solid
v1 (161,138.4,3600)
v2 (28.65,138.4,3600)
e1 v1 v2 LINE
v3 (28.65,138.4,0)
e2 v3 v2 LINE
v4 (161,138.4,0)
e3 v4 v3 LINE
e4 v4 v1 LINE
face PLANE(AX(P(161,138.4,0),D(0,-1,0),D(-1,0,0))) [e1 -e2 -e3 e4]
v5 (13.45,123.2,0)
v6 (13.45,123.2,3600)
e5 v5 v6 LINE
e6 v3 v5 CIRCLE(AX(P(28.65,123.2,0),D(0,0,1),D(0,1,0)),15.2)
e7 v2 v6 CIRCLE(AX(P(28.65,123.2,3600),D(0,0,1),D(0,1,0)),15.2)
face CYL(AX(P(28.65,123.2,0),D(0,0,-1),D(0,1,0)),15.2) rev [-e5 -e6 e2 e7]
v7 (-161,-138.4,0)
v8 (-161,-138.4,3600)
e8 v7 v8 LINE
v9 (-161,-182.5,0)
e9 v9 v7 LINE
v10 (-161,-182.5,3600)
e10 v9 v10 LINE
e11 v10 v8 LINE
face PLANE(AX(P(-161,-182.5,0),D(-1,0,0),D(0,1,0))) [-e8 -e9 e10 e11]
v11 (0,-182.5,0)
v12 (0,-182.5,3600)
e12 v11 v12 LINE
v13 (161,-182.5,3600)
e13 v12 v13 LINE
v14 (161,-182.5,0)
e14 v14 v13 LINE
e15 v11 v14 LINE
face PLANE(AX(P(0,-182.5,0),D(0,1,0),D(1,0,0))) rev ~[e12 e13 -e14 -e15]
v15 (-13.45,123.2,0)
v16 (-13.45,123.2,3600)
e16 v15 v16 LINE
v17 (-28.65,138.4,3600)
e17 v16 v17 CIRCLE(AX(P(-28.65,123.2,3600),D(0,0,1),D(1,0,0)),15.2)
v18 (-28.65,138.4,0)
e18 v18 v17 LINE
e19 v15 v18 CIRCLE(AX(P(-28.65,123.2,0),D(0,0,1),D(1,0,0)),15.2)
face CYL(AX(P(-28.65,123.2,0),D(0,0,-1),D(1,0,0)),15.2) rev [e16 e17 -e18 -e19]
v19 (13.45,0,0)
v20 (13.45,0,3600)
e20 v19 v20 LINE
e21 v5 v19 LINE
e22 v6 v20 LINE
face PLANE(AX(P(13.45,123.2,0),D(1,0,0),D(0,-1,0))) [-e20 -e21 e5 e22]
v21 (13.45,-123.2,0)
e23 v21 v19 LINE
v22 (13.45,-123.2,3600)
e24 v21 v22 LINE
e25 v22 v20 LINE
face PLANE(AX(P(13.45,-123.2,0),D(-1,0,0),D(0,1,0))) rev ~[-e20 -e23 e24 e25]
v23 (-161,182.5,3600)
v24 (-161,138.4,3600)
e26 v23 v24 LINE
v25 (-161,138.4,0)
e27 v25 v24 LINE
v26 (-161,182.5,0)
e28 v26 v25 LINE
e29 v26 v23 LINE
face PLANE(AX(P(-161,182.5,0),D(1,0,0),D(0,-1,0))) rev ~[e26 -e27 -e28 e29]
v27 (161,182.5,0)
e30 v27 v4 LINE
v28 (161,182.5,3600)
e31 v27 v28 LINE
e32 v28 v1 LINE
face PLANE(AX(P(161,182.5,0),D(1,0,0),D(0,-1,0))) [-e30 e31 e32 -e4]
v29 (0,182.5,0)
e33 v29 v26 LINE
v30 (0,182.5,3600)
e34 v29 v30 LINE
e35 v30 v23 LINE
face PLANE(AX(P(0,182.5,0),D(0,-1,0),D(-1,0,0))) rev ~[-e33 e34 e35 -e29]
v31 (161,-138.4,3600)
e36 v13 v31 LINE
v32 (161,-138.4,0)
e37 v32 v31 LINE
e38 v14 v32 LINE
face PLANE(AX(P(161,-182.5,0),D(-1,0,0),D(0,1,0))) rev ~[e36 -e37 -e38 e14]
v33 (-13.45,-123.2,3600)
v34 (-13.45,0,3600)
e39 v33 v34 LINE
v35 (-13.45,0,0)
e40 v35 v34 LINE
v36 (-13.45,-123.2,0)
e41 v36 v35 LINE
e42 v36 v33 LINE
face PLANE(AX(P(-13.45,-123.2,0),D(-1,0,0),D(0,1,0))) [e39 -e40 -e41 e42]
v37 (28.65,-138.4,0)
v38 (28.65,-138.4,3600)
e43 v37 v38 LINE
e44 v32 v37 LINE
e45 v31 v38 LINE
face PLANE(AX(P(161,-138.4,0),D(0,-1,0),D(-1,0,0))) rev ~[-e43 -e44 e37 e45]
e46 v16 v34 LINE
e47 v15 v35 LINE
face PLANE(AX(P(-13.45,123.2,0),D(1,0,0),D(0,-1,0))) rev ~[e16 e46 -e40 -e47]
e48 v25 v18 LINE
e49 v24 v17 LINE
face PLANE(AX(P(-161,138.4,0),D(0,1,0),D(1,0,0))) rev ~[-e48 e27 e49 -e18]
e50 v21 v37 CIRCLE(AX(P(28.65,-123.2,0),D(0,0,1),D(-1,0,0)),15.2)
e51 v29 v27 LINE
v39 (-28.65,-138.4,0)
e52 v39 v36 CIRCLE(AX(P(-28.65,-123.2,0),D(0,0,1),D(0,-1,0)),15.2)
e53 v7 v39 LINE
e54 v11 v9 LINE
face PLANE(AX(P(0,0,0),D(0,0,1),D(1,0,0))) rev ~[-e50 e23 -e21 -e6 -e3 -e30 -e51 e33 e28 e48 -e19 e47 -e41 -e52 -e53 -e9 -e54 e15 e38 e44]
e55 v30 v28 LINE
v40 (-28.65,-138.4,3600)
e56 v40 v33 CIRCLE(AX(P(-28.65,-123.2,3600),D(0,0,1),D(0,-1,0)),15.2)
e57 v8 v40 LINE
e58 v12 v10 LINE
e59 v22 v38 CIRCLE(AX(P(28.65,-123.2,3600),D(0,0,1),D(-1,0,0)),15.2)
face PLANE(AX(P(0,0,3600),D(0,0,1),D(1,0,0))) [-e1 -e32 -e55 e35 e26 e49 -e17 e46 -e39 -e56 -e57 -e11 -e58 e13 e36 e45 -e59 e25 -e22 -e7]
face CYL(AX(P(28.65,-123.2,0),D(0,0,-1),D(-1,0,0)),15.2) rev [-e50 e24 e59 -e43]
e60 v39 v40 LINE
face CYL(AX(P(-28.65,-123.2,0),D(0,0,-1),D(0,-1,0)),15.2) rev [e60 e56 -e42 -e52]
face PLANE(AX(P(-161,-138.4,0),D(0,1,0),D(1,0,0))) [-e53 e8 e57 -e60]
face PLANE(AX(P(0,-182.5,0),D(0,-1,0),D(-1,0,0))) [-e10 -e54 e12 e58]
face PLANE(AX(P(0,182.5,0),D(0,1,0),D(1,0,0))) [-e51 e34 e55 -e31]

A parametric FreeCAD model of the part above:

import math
import FreeCAD as App
import Part
import Sketcher

V = App.Vector

doc = App.newDocument("Part")
body = doc.addObject("PartDesign::Body", "Body")

# Sketch on XY plane
sketch1 = doc.addObject("Sketcher::SketchObject", "Sketch")
body.addObject(sketch1)
sketch1.AttachmentSupport = (doc.XY_Plane, [""])
sketch1.MapMode = "FlatFace"
sketch1.addGeometry(Part.LineSegment(V(-161, -138, 0), V(-161, -182, 0)), False)
sketch1.addGeometry(Part.LineSegment(V(-161, -182, 0), V(161, -182, 0)), False)
sketch1.addGeometry(Part.LineSegment(V(161, -182, 0), V(161, -138, 0)), False)
sketch1.addGeometry(Part.LineSegment(V(161, -138, 0), V(29, -138, 0)), False)
sketch1.addGeometry(Part.ArcOfCircle(Part.Circle(V(29, -123, 0), V(0, 0, 1), 15), math.radians(180), math.radians(270)), False)
sketch1.addGeometry(Part.LineSegment(V(13, -123, 0), V(13, 123, 0)), False)
sketch1.addGeometry(Part.ArcOfCircle(Part.Circle(V(29, 123, 0), V(0, 0, 1), 15), math.radians(90), math.radians(180)), False)
sketch1.addGeometry(Part.LineSegment(V(29, 138, 0), V(161, 138, 0)), False)
sketch1.addGeometry(Part.LineSegment(V(161, 138, 0), V(161, 182, 0)), False)
sketch1.addGeometry(Part.LineSegment(V(161, 182, 0), V(-161, 182, 0)), False)
sketch1.addGeometry(Part.LineSegment(V(-161, 182, 0), V(-161, 138, 0)), False)
sketch1.addGeometry(Part.LineSegment(V(-161, 138, 0), V(-29, 138, 0)), False)
sketch1.addGeometry(Part.ArcOfCircle(Part.Circle(V(-29, 123, 0), V(0, 0, 1), 15), math.radians(0), math.radians(90)), False)
sketch1.addGeometry(Part.LineSegment(V(-13, 123, 0), V(-13, -123, 0)), False)
sketch1.addGeometry(Part.ArcOfCircle(Part.Circle(V(-29, -123, 0), V(0, 0, 1), 15), math.radians(-90), math.radians(0)), False)
sketch1.addGeometry(Part.LineSegment(V(-29, -138, 0), V(-161, -138, 0)), False)
sketch1.addConstraint(Sketcher.Constraint("Coincident", 0, 2, 1, 1))
sketch1.addConstraint(Sketcher.Constraint("Coincident", 1, 2, 2, 1))
sketch1.addConstraint(Sketcher.Constraint("Coincident", 2, 2, 3, 1))
sketch1.addConstraint(Sketcher.Constraint("Tangent", 3, 2, 4, 2))
sketch1.addConstraint(Sketcher.Constraint("Tangent", 4, 1, 5, 1))
sketch1.addConstraint(Sketcher.Constraint("Tangent", 5, 2, 6, 2))
sketch1.addConstraint(Sketcher.Constraint("Tangent", 6, 1, 7, 1))
sketch1.addConstraint(Sketcher.Constraint("Coincident", 7, 2, 8, 1))
sketch1.addConstraint(Sketcher.Constraint("Coincident", 8, 2, 9, 1))
sketch1.addConstraint(Sketcher.Constraint("Coincident", 9, 2, 10, 1))
sketch1.addConstraint(Sketcher.Constraint("Coincident", 10, 2, 11, 1))
sketch1.addConstraint(Sketcher.Constraint("Tangent", 11, 2, 12, 2))
sketch1.addConstraint(Sketcher.Constraint("Tangent", 12, 1, 13, 1))
sketch1.addConstraint(Sketcher.Constraint("Tangent", 13, 2, 14, 2))
sketch1.addConstraint(Sketcher.Constraint("Tangent", 14, 1, 15, 1))
sketch1.addConstraint(Sketcher.Constraint("Coincident", 15, 2, 0, 1))
sketch1.addConstraint(Sketcher.Constraint("Vertical", 0))
sketch1.addConstraint(Sketcher.Constraint("Horizontal", 1))
sketch1.addConstraint(Sketcher.Constraint("Vertical", 2))
sketch1.addConstraint(Sketcher.Constraint("Horizontal", 3))
sketch1.addConstraint(Sketcher.Constraint("Vertical", 5))
sketch1.addConstraint(Sketcher.Constraint("Horizontal", 7))
sketch1.addConstraint(Sketcher.Constraint("Vertical", 8))
sketch1.addConstraint(Sketcher.Constraint("Horizontal", 9))
sketch1.addConstraint(Sketcher.Constraint("Vertical", 10))
sketch1.addConstraint(Sketcher.Constraint("Horizontal", 11))
sketch1.addConstraint(Sketcher.Constraint("Vertical", 13))
sketch1.addConstraint(Sketcher.Constraint("Horizontal", 15))
sketch1.addConstraint(Sketcher.Constraint("Equal", 4, 6))
sketch1.addConstraint(Sketcher.Constraint("Equal", 6, 12))
sketch1.addConstraint(Sketcher.Constraint("Equal", 12, 14))
sketch1.addConstraint(Sketcher.Constraint("Symmetric", 4, 3, 12, 3, -1, 1))
sketch1.addConstraint(Sketcher.Constraint("Symmetric", 0, 2, 8, 2, -1, 1))
sketch1.addConstraint(Sketcher.Constraint("Symmetric", 7, 2, 10, 2, -2))
sketch1.addConstraint(Sketcher.Constraint("Symmetric", 2, 2, 15, 2, -2))
sketch1.addConstraint(Sketcher.Constraint("Radius", 4, 15.2))
sketch1.addConstraint(Sketcher.Constraint("DistanceY", 0, 2, 0, 1, 44.1))
sketch1.addConstraint(Sketcher.Constraint("DistanceX", 0, 2, -1, 1, 161.0))
sketch1.addConstraint(Sketcher.Constraint("DistanceY", 0, 2, -1, 1, 182.5))
sketch1.addConstraint(Sketcher.Constraint("DistanceX", -1, 1, 4, 1, 13.45))
pad1 = doc.addObject("PartDesign::Pad", "Pad")
body.addObject(pad1)
pad1.Profile = sketch1
pad1.Length = 3600

doc.recompute()
